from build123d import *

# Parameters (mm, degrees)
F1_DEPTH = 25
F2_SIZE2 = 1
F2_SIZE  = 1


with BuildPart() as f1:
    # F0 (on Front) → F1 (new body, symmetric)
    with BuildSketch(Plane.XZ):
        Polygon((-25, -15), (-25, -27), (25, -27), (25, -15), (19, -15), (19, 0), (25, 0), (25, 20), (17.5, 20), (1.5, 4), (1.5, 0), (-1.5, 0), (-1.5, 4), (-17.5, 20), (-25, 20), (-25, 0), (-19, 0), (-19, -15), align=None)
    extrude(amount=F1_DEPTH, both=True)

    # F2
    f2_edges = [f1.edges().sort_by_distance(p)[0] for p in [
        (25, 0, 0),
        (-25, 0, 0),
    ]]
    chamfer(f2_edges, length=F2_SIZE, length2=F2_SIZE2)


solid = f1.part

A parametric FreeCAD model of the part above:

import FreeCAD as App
import Part
import Sketcher
Q = App.Units.Quantity


def edges_at(feature, points):
    """Names of the edges that pass closest to the given points."""
    edges = feature.Shape.Edges
    near = lambda p: min(range(len(edges)), key=lambda i: edges[i].distToShape(Part.Vertex(*p))[0])
    return sorted({f"Edge{near(p) + 1}" for p in points})


def add_polygon(sketch, points):
    """Adds a closed chain of lines whose ends are joined by coincident constraints."""
    first, n = sketch.GeometryCount, len(points)
    for a, b in zip(points, points[1:] + points[:1]):
        sketch.addGeometry(Part.LineSegment(App.Vector(*a, 0), App.Vector(*b, 0)), False)
    for i in range(n):
        sketch.addConstraint(Sketcher.Constraint("Coincident", first + i, 2, first + (i + 1) % n, 1))

doc = App.newDocument("Part")
body = doc.addObject("PartDesign::Body", "Body")

# Sketch on XZ plane
sketch1 = body.newObject("Sketcher::SketchObject", "Sketch")
sketch1.AttachmentSupport = (doc.getObject("XZ_Plane"), [""])
sketch1.MapMode = "FlatFace"
add_polygon(sketch1, [(-25, -15), (-25, -27), (25, -27), (25, -15), (19, -15), (19, 0), (25, 0), (25, 20), (17.5, 20), (1.5, 4), (1.5, 0), (-1.5, 0), (-1.5, 4), (-17.5, 20), (-25, 20), (-25, 0), (-19, 0), (-19, -15)])  # lines 0-17
sketch1.addConstraint([
    Sketcher.Constraint("Vertical", 0),
    Sketcher.Constraint("Horizontal", 1),
    Sketcher.Constraint("Vertical", 2),
    Sketcher.Constraint("Horizontal", 3),
    Sketcher.Constraint("Vertical", 4),
    Sketcher.Constraint("Horizontal", 5),
    Sketcher.Constraint("Vertical", 6),
    Sketcher.Constraint("Horizontal", 7),
    Sketcher.Constraint("Vertical", 9),
    Sketcher.Constraint("Horizontal", 10),
    Sketcher.Constraint("Vertical", 11),
    Sketcher.Constraint("Horizontal", 13),
    Sketcher.Constraint("Vertical", 14),
    Sketcher.Constraint("Horizontal", 15),
    Sketcher.Constraint("Vertical", 16),
    Sketcher.Constraint("Horizontal", 17),
    Sketcher.Constraint("Symmetric", 9, 2, 10, 2, -1, 1),
    Sketcher.Constraint("Symmetric", 5, 2, 14, 2, -1, 1),
    Sketcher.Constraint("Symmetric", 7, 2, 12, 2, -2),
    Sketcher.Constraint("Symmetric", 4, 2, 15, 2, -2),
    Sketcher.Constraint("Symmetric", 2, 2, 17, 2, -2),
    Sketcher.Constraint("Perpendicular", 8, 12),
    Sketcher.Constraint("Horizontal", 8, 2, 11, 2),
    Sketcher.Constraint("Vertical", 2, 2, 5, 2),
    Sketcher.Constraint("DistanceX", 1, 1, 1, 2, Q("50 mm")),
    Sketcher.Constraint("DistanceX", 3, 2, 3, 1, Q("6 mm")),
    Sketcher.Constraint("DistanceX", 10, 2, 10, 1, Q("3 mm")),
    Sketcher.Constraint("DistanceY", 0, 2, 0, 1, Q("12 mm")),
    Sketcher.Constraint("DistanceY", 4, 1, 4, 2, Q("15 mm")),
    Sketcher.Constraint("DistanceY", 6, 1, 6, 2, Q("20 mm")),
    Sketcher.Constraint("DistanceY", 9, 2, 9, 1, Q("4 mm")),
])
pad1 = body.newObject("PartDesign::Pad", "Pad")
pad1.Profile = sketch1
pad1.Length = 50
pad1.Midplane = True
doc.recompute()

chamfer = body.newObject("PartDesign::Chamfer", "Chamfer")
chamfer.Base = (pad1, edges_at(pad1, [(25, 0, 0), (-25, 0, 0)]))
chamfer.ChamferType = "Two distances"
chamfer.Size = 1
chamfer.Size2 = 1

doc.recompute()
